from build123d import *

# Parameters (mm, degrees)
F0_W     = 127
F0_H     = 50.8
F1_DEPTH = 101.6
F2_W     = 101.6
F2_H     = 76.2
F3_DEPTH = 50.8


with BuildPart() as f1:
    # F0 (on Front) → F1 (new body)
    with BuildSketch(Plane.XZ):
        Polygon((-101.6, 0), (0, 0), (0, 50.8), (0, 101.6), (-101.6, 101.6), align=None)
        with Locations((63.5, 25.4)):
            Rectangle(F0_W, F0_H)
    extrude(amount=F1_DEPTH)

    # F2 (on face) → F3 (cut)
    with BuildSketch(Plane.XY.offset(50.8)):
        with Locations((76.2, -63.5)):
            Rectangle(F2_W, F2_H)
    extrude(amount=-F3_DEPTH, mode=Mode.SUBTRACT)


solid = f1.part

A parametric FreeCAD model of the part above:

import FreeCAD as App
import Part
import Sketcher
Q = App.Units.Quantity


def add_polygon(sketch, points):
    """Adds a closed chain of lines whose ends are joined by coincident constraints."""
    first, n = sketch.GeometryCount, len(points)
    for a, b in zip(points, points[1:] + points[:1]):
        sketch.addGeometry(Part.LineSegment(App.Vector(*a, 0), App.Vector(*b, 0)), False)
    for i in range(n):
        sketch.addConstraint(Sketcher.Constraint("Coincident", first + i, 2, first + (i + 1) % n, 1))

doc = App.newDocument("Part")
body = doc.addObject("PartDesign::Body", "Body")

# Sketch on XZ plane
sketch1 = doc.addObject("Sketcher::SketchObject", "Sketch")
body.addObject(sketch1)
sketch1.AttachmentSupport = (doc.XZ_Plane, [""])
sketch1.MapMode = "FlatFace"
add_polygon(sketch1, [(-102, 0), (127, 0), (127, 51), (0, 51), (0, 102), (-102, 102)])  # lines 0-5
sketch1.addConstraint([
    Sketcher.Constraint("Horizontal", 0),
    Sketcher.Constraint("Vertical", 1),
    Sketcher.Constraint("Horizontal", 2),
    Sketcher.Constraint("Vertical", 3),
    Sketcher.Constraint("Horizontal", 4),
    Sketcher.Constraint("Vertical", 5),
    Sketcher.Constraint("PointOnObject", 0, 2, -1),
    Sketcher.Constraint("PointOnObject", 2, 2, -2),
    Sketcher.Constraint("Equal", 1, 3),
    Sketcher.Constraint("Equal", 4, 5),
    Sketcher.Constraint("DistanceX", 0, 1, 0, 2, Q("9 in")),
    Sketcher.Constraint("DistanceX", 2, 2, 2, 1, Q("5 in")),
])
pad1 = doc.addObject("PartDesign::Pad", "Pad")
body.addObject(pad1)
pad1.Profile = sketch1
pad1.Length = Q("4 in")

# Sketch on XY plane
sketch2 = doc.addObject("Sketcher::SketchObject", "Sketch001")
body.addObject(sketch2)
sketch2.AttachmentSupport = (doc.XY_Plane, [""])
sketch2.MapMode = "FlatFace"
sketch2.AttachmentOffset = App.Placement(App.Vector(0, 0, 2 * 25.4), App.Rotation())
add_polygon(sketch2, [(25, -25), (25, -102), (127, -102), (127, -25)])  # lines 0-3
sketch2.addConstraint([
    Sketcher.Constraint("Vertical", 0),
    Sketcher.Constraint("Horizontal", 1),
    Sketcher.Constraint("Vertical", 2),
    Sketcher.Constraint("Horizontal", 3),
    Sketcher.Constraint("DistanceX", 1, 1, 1, 2, Q("4 in")),
    Sketcher.Constraint("DistanceY", 0, 2, 0, 1, Q("3 in")),
    Sketcher.Constraint("DistanceX", -1, 1, 0, 2, Q("1 in")),
    Sketcher.Constraint("DistanceY", 0, 2, -1, 1, Q("4 in")),
])
pocket1 = doc.addObject("PartDesign::Pocket", "Pocket")
body.addObject(pocket1)
pocket1.Profile = sketch2
pocket1.Length = Q("2 in")

doc.recompute()
